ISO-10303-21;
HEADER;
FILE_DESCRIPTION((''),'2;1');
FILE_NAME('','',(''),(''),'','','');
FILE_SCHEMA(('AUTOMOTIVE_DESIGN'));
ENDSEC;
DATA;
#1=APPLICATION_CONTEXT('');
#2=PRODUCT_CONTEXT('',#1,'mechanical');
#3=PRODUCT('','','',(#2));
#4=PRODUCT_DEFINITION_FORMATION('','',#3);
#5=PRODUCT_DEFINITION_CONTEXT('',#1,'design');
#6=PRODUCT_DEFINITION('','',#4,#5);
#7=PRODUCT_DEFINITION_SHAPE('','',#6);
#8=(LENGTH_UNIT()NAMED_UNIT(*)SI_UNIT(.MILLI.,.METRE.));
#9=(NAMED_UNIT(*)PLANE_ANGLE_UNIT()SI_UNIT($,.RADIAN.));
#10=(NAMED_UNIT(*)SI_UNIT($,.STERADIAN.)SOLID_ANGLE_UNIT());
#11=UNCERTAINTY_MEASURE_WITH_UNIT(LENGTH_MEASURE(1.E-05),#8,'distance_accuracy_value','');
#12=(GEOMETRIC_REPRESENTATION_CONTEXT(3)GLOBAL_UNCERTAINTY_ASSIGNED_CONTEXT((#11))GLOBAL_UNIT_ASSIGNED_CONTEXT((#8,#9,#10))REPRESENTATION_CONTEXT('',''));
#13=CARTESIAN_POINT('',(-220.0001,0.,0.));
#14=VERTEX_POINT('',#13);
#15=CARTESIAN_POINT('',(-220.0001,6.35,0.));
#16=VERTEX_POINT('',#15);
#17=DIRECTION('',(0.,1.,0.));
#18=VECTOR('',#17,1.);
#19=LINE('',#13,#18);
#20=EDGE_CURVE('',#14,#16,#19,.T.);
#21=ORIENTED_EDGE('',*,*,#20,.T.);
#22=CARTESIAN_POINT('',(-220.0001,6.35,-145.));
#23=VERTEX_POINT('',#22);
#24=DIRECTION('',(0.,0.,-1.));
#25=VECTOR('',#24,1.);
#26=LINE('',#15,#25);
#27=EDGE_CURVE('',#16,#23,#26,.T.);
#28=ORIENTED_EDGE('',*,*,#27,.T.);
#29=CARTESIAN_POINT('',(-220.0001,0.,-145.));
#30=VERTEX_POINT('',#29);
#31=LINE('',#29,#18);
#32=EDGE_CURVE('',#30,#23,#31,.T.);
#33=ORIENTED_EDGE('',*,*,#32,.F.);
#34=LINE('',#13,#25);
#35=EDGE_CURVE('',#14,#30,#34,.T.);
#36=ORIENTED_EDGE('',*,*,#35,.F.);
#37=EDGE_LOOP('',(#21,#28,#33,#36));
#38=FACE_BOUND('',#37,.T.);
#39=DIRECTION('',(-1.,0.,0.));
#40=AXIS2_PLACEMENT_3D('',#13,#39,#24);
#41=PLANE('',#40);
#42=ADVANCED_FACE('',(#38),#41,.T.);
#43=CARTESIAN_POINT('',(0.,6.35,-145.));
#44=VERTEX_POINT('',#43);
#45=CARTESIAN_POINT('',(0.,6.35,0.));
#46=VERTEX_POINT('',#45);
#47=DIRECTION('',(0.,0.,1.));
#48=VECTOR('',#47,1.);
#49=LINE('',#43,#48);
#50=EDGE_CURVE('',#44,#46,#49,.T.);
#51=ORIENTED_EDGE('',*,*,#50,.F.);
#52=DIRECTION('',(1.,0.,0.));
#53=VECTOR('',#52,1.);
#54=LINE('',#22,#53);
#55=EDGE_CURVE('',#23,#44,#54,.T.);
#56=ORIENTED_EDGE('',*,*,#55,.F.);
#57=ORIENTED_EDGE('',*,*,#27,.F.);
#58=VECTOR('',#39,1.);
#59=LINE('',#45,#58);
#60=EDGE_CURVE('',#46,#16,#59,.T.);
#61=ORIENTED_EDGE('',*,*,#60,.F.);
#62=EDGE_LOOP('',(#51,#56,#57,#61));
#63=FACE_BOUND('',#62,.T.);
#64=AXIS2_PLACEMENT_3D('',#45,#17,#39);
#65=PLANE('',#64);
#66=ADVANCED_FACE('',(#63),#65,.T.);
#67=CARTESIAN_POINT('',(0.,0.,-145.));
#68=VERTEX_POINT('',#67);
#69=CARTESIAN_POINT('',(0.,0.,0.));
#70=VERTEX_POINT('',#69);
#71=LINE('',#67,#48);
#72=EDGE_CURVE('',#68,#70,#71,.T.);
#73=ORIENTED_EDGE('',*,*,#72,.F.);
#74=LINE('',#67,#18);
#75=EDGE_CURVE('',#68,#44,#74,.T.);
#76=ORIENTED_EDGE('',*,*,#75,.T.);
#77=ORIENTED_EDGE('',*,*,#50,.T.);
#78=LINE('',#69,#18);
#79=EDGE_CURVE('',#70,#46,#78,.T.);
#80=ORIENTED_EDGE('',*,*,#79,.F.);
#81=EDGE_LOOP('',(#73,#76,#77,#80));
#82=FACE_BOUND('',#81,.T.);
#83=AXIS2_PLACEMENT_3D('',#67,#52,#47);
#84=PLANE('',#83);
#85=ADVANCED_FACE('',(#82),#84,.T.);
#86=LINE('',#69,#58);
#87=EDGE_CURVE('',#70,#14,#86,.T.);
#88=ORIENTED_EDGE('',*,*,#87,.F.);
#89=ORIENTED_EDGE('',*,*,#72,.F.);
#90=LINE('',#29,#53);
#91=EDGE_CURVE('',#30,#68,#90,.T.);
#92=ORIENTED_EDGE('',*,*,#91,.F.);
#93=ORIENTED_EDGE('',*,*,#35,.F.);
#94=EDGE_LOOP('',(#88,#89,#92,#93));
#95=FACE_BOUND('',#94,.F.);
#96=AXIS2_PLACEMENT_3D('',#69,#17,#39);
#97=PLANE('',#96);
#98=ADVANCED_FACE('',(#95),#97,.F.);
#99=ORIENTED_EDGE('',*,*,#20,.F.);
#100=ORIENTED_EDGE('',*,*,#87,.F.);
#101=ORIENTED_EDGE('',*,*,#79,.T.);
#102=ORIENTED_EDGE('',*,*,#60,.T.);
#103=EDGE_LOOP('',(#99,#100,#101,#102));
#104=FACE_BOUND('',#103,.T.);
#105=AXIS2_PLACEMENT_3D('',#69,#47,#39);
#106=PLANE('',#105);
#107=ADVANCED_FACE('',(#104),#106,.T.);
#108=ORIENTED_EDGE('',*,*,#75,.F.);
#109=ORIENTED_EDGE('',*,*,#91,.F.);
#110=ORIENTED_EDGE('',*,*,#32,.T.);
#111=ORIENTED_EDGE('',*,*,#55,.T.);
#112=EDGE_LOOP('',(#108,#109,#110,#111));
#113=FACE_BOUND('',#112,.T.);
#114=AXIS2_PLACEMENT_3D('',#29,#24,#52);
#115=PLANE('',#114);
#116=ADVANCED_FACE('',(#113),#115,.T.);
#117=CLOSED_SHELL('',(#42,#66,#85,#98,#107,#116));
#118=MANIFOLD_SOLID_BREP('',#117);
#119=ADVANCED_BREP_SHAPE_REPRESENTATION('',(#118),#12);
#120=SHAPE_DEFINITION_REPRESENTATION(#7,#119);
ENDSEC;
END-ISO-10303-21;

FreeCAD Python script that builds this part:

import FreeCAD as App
import Part
import Sketcher

V = App.Vector
Q = App.Units.Quantity

doc = App.newDocument("Part")
body = doc.addObject("PartDesign::Body", "Body")

sketch1 = body.newObject("Sketcher::SketchObject", "Sketch")
sketch1.AttachmentSupport = (doc.getObject("XZ_Plane"), [""])
sketch1.MapMode = "FlatFace"
sketch1.addGeometry(Part.LineSegment(V(-220.0001, 0, 0), V(0, 0, 0)), False)
sketch1.addGeometry(Part.LineSegment(V(0, 0, 0), V(0, -145, 0)), False)
sketch1.addGeometry(Part.LineSegment(V(0, -145, 0), V(-220.0001, -145, 0)), False)
sketch1.addGeometry(Part.LineSegment(V(-220.0001, -145, 0), V(-220.0001, 0, 0)), False)
sketch1.addConstraint(Sketcher.Constraint("Coincident", 0, 2, 1, 1))
sketch1.addConstraint(Sketcher.Constraint("Coincident", 1, 2, 2, 1))
sketch1.addConstraint(Sketcher.Constraint("Coincident", 2, 2, 3, 1))
sketch1.addConstraint(Sketcher.Constraint("Coincident", 3, 2, 0, 1))
sketch1.addConstraint(Sketcher.Constraint("Horizontal", 0))
sketch1.addConstraint(Sketcher.Constraint("Vertical", 1))
sketch1.addConstraint(Sketcher.Constraint("Horizontal", 2))
sketch1.addConstraint(Sketcher.Constraint("Vertical", 3))
sketch1.addConstraint(Sketcher.Constraint("Coincident", 0, 2, -1, 1))
sketch1.addConstraint(Sketcher.Constraint("DistanceX", 0, 1, 0, 2, Q("220 mm")))
sketch1.addConstraint(Sketcher.Constraint("DistanceY", 1, 2, 1, 1, Q("145 mm")))
pad1 = body.newObject("PartDesign::Pad", "Pad")
pad1.Profile = sketch1
pad1.Length = 6.35
pad1.Reversed = True

doc.recompute()
